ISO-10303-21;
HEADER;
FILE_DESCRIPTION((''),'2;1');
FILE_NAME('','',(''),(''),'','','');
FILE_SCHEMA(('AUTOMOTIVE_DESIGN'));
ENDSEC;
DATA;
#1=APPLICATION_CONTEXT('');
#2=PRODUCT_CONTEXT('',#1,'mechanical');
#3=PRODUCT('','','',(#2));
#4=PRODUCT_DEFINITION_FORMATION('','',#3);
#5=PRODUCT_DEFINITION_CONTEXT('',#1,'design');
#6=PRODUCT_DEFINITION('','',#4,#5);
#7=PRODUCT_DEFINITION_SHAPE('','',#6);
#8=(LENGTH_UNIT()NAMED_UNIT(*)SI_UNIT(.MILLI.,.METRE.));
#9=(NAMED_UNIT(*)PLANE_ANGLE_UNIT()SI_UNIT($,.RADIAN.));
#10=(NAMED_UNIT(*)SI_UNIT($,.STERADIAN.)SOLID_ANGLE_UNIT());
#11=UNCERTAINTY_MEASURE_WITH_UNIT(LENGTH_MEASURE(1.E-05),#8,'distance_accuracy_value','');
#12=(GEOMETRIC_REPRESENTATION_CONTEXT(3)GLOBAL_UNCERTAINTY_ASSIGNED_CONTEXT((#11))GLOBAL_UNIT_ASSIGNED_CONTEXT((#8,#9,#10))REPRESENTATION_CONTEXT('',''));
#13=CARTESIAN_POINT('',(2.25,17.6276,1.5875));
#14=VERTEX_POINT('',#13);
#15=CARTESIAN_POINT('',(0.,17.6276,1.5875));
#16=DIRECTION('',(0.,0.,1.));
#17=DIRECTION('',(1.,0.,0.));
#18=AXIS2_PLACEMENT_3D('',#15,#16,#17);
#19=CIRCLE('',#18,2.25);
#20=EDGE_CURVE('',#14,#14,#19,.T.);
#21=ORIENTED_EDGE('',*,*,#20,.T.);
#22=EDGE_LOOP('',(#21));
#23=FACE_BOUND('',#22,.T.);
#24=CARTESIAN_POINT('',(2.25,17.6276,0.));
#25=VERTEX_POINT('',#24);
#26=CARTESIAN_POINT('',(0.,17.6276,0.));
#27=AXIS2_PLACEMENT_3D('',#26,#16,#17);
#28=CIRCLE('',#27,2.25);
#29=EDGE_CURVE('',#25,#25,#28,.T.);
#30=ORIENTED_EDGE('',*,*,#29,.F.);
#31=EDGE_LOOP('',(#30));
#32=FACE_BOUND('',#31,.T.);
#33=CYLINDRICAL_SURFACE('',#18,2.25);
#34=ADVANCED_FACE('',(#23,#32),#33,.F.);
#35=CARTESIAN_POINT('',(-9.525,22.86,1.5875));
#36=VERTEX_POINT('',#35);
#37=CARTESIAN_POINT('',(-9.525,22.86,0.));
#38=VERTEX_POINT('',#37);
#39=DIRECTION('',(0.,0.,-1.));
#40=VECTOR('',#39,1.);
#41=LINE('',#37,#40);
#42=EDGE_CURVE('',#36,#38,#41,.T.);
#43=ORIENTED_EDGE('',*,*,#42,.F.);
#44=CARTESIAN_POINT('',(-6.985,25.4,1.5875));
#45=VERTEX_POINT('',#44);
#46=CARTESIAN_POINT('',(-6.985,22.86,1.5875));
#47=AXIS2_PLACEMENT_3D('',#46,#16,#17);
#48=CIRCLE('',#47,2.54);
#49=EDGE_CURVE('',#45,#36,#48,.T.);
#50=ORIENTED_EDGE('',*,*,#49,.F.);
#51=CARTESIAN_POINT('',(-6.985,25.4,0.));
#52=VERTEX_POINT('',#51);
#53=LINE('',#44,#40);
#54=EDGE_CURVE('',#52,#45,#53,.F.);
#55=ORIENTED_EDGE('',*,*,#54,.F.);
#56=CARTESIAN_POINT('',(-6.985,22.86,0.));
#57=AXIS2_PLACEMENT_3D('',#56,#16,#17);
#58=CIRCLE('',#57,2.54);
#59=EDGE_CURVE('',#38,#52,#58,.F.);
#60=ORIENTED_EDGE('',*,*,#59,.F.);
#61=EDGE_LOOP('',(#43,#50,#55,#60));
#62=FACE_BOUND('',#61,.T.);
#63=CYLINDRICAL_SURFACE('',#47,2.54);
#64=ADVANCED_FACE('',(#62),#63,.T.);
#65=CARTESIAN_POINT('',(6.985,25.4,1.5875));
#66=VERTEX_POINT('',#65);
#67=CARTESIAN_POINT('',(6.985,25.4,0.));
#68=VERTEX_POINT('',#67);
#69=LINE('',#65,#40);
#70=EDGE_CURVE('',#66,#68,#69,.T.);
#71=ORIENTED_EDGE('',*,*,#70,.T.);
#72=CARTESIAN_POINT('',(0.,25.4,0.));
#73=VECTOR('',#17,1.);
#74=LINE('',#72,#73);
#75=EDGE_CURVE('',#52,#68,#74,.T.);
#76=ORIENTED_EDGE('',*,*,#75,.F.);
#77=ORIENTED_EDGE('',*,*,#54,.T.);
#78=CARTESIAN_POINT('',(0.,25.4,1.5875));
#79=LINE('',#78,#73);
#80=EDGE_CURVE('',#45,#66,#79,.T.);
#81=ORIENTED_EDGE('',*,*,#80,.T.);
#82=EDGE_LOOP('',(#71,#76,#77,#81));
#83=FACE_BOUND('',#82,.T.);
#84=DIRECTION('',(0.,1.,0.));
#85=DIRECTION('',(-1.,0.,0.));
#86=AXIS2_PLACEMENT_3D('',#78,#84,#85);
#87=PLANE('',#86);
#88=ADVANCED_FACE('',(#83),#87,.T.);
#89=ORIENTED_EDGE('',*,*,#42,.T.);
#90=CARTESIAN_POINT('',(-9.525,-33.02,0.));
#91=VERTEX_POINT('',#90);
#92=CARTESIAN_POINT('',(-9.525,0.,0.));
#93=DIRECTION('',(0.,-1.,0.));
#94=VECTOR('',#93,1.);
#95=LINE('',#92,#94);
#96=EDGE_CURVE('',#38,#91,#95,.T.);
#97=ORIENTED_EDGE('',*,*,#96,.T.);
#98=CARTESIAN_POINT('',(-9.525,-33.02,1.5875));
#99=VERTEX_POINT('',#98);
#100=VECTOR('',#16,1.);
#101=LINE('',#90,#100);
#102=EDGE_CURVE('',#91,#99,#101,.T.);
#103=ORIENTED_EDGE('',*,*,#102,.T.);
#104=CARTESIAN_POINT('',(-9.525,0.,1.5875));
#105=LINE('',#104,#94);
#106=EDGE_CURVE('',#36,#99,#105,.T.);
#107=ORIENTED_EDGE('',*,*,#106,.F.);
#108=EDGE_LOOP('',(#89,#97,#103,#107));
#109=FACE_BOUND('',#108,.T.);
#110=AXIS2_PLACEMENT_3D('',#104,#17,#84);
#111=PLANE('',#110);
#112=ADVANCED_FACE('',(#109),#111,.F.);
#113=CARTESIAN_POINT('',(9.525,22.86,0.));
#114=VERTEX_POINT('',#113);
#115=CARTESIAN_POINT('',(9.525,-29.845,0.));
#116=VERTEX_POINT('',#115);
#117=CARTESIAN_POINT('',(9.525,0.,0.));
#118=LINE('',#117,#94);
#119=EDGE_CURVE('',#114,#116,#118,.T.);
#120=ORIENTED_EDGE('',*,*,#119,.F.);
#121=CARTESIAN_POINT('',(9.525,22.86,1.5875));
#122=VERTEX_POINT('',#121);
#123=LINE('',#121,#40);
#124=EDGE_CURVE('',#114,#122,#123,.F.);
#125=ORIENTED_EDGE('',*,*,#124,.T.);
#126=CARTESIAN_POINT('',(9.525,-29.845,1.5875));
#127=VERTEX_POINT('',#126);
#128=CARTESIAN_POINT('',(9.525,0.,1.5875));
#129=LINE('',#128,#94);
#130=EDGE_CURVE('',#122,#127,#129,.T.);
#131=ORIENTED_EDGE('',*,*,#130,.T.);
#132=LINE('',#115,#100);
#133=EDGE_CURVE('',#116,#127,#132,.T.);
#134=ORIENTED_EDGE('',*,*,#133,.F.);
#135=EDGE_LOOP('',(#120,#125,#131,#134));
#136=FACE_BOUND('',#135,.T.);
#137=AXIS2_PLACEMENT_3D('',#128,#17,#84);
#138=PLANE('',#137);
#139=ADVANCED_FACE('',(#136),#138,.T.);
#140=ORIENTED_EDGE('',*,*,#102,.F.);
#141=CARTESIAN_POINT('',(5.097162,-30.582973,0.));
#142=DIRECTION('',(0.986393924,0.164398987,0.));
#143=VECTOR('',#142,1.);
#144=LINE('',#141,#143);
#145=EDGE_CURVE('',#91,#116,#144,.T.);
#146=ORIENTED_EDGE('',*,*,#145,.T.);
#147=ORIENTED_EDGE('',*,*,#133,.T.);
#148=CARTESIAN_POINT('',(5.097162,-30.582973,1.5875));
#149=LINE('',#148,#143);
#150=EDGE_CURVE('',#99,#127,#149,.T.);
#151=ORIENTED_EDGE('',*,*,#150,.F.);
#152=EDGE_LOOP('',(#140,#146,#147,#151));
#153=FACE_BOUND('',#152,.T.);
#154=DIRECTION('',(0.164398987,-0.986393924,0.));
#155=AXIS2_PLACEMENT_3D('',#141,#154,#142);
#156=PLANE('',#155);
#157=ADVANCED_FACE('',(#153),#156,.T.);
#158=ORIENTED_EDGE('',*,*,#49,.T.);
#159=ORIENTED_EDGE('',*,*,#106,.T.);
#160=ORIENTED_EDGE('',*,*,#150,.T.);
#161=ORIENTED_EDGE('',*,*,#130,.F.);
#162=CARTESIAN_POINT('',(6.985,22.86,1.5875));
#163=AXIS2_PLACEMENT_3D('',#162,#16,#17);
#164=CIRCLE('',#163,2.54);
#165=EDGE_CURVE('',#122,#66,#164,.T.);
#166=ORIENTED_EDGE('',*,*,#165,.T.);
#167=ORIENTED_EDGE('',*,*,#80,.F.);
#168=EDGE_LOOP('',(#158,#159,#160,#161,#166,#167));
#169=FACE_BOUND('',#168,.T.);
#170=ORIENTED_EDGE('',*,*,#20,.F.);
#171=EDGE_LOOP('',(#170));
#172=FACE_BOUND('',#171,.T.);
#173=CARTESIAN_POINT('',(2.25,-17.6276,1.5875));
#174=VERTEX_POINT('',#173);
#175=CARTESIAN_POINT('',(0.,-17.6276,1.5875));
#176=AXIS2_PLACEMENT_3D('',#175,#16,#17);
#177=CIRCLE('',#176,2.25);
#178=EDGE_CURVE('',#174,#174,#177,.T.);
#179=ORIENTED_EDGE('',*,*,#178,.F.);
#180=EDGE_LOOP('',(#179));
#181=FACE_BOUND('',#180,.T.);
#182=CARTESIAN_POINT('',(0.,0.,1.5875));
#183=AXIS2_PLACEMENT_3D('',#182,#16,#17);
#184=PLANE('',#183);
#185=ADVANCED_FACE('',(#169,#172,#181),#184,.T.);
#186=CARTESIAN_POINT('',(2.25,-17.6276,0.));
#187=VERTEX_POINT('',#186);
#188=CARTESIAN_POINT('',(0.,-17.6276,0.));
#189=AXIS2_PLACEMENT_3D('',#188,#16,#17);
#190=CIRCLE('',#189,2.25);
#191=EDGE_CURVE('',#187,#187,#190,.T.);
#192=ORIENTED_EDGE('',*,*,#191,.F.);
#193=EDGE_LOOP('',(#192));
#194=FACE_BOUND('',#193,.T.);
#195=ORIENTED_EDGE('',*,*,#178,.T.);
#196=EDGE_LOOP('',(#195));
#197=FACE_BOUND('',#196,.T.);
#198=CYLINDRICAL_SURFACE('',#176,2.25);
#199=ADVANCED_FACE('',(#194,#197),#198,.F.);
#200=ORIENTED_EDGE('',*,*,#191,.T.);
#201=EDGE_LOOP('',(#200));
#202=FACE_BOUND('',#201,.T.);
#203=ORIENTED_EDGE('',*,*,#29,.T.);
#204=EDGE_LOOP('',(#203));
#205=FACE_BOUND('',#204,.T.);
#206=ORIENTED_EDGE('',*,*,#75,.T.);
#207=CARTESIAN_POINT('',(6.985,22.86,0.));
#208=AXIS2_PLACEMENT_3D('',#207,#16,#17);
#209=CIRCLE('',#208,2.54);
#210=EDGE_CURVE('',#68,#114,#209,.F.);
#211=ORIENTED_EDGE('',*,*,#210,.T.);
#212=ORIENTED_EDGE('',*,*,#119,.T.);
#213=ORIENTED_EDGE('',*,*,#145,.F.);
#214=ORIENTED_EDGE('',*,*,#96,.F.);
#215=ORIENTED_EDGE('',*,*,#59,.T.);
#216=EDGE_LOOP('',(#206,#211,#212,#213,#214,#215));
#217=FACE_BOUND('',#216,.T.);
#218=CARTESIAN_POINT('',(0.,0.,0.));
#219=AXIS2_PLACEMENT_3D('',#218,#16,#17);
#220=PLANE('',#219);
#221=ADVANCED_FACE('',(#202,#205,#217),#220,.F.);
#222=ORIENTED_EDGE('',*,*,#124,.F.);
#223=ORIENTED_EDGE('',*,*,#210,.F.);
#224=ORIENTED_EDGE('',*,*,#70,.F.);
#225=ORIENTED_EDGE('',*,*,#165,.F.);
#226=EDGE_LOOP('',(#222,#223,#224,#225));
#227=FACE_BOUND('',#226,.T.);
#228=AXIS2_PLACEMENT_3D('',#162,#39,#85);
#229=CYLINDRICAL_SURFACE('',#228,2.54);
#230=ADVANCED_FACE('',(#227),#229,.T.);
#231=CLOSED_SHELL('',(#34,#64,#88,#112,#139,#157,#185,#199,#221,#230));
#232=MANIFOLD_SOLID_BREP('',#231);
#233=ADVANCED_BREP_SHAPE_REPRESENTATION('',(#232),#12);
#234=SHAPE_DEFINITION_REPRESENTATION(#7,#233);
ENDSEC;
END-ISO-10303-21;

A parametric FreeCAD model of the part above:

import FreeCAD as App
import Part
import Sketcher

V = App.Vector
Q = App.Units.Quantity


def edges_at(feature, points):
    """Names of the edges that pass closest to the given points."""
    edges = feature.Shape.Edges
    near = lambda p: min(range(len(edges)), key=lambda i: edges[i].distToShape(Part.Vertex(*p))[0])
    return sorted({f"Edge{near(p) + 1}" for p in points})

doc = App.newDocument("Part")
params = doc.addObject("Spreadsheet::Sheet", "Params")
for row, (alias, value) in enumerate([
    ("sketch1_height", "2 in"),
    ("sketch1_width", "0.75 in"),
    ("pad1_length", "0.0625 in"),
    ("hole_diameter", "4.5 mm"),
    ("sketch3_height", "0.3 in"),
    ("sketch3_width", "0.75 in"),
    ("pad2_length", "0.0625 in"),
    ("fillet_radius", "0.1 in"),
    ("sketch4_width", "0.75 in"),
    ("sketch4_height", "0.125 in"),
], start=1):
    params.set(f"A{row}", alias)
    params.set(f"B{row}", "=" + value)
    params.setAlias(f"B{row}", alias)

body = doc.addObject("PartDesign::Body", "Body")

# Sketch on XY plane
sketch1 = body.newObject("Sketcher::SketchObject", "Sketch")
sketch1.AttachmentSupport = (doc.getObject("XY_Plane"), [""])
sketch1.MapMode = "FlatFace"
sketch1.addGeometry(Part.LineSegment(V(-9.525, 25.4, 0), V(-9.525, -25.4, 0)), False)
sketch1.addGeometry(Part.LineSegment(V(-9.525, -25.4, 0), V(9.525, -25.4, 0)), False)
sketch1.addGeometry(Part.LineSegment(V(9.525, -25.4, 0), V(9.525, 25.4, 0)), False)
sketch1.addGeometry(Part.LineSegment(V(9.525, 25.4, 0), V(-9.525, 25.4, 0)), False)
sketch1.addConstraint(Sketcher.Constraint("Coincident", 0, 2, 1, 1))
sketch1.addConstraint(Sketcher.Constraint("Coincident", 1, 2, 2, 1))
sketch1.addConstraint(Sketcher.Constraint("Coincident", 2, 2, 3, 1))
sketch1.addConstraint(Sketcher.Constraint("Coincident", 3, 2, 0, 1))
sketch1.addConstraint(Sketcher.Constraint("Vertical", 0))
sketch1.addConstraint(Sketcher.Constraint("Horizontal", 1))
sketch1.addConstraint(Sketcher.Constraint("Vertical", 2))
sketch1.addConstraint(Sketcher.Constraint("Horizontal", 3))
sketch1.addConstraint(Sketcher.Constraint("Symmetric", 0, 2, 2, 2, -1, 1))
sketch1.addConstraint(Sketcher.Constraint("DistanceY", 0, 2, 0, 1, Q("2 in")))
sketch1.addConstraint(Sketcher.Constraint("DistanceX", 1, 1, 1, 2, Q("0.75 in")))
sketch1.setExpression("Constraints[9]", "Params.sketch1_height")
sketch1.setExpression("Constraints[10]", "Params.sketch1_width")
pad1 = body.newObject("PartDesign::Pad", "Pad")
pad1.Profile = sketch1
pad1.setExpression("Length", "Params.pad1_length")

# Sketch on XY plane
sketch2 = body.newObject("Sketcher::SketchObject", "Sketch001")
sketch2.AttachmentSupport = (doc.getObject("XY_Plane"), [""])
sketch2.MapMode = "FlatFace"
sketch2.AttachmentOffset = App.Placement(V(0, 0, 0.0625 * 25.4), App.Rotation())
sketch2.addGeometry(Part.Circle(V(0, 17.6276, 0), V(0, 0, 1), 2.25), False)
sketch2.addGeometry(Part.Circle(V(0, -17.6276, 0), V(0, 0, 1), 2.25), False)
sketch2.addConstraint(Sketcher.Constraint("Equal", 0, 1))
sketch2.addConstraint(Sketcher.Constraint("Symmetric", 0, 3, 1, 3, -1, 1))
sketch2.addConstraint(Sketcher.Constraint("PointOnObject", 0, 3, -2))
sketch2.addConstraint(Sketcher.Constraint("Diameter", 0, Q("4.5 mm")))
sketch2.addConstraint(Sketcher.Constraint("DistanceY", -1, 1, 0, 3, Q("0.694 in")))
doc.recompute()
hole = body.newObject("PartDesign::Hole", "Hole")
hole.Profile = sketch2
hole.ThreadType = "None"
hole.setExpression("Diameter", "Params.hole_diameter")
hole.DepthType = "ThroughAll"

# Sketch on XY plane
sketch3 = body.newObject("Sketcher::SketchObject", "Sketch002")
sketch3.AttachmentSupport = (doc.getObject("XY_Plane"), [""])
sketch3.MapMode = "FlatFace"
sketch3.AttachmentOffset = App.Placement(V(0, 0, 0.0625 * 25.4), App.Rotation())
sketch3.addGeometry(Part.LineSegment(V(-9.525, -25.4, 0), V(-9.525, -33.02, 0)), False)
sketch3.addGeometry(Part.LineSegment(V(-9.525, -33.02, 0), V(9.525, -33.02, 0)), False)
sketch3.addGeometry(Part.LineSegment(V(9.525, -33.02, 0), V(9.525, -25.4, 0)), False)
sketch3.addGeometry(Part.LineSegment(V(9.525, -25.4, 0), V(-9.525, -25.4, 0)), False)
sketch3.addConstraint(Sketcher.Constraint("Coincident", 0, 2, 1, 1))
sketch3.addConstraint(Sketcher.Constraint("Coincident", 1, 2, 2, 1))
sketch3.addConstraint(Sketcher.Constraint("Coincident", 2, 2, 3, 1))
sketch3.addConstraint(Sketcher.Constraint("Coincident", 3, 2, 0, 1))
sketch3.addConstraint(Sketcher.Constraint("Vertical", 0))
sketch3.addConstraint(Sketcher.Constraint("Horizontal", 1))
sketch3.addConstraint(Sketcher.Constraint("Vertical", 2))
sketch3.addConstraint(Sketcher.Constraint("Horizontal", 3))
sketch3.addConstraint(Sketcher.Constraint("DistanceY", 0, 2, 0, 1, Q("0.3 in")))
sketch3.addConstraint(Sketcher.Constraint("DistanceY", 2, 2, -1, 1, Q("1 in")))
sketch3.addConstraint(Sketcher.Constraint("DistanceX", 1, 1, 1, 2, Q("0.75 in")))
sketch3.addConstraint(Sketcher.Constraint("DistanceX", 0, 2, -1, 1, Q("0.375 in")))
sketch3.setExpression("Constraints[8]", "Params.sketch3_height")
sketch3.setExpression("Constraints[10]", "Params.sketch3_width")
pad2 = body.newObject("PartDesign::Pad", "Pad001")
pad2.Profile = sketch3
pad2.setExpression("Length", "Params.pad2_length")
pad2.Reversed = True
doc.recompute()

fillet = body.newObject("PartDesign::Fillet", "Fillet")
fillet.Base = (pad2, edges_at(pad2, [(-9.525, 25.4, 0.794), (9.525, 25.4, 0.794)]))
fillet.setExpression("Radius", "Params.fillet_radius")

# Sketch on XY plane
sketch4 = body.newObject("Sketcher::SketchObject", "Sketch003")
sketch4.AttachmentSupport = (doc.getObject("XY_Plane"), [""])
sketch4.MapMode = "FlatFace"
sketch4.AttachmentOffset = App.Placement(V(0, 0, 0.0625 * 25.4), App.Rotation())
sketch4.addGeometry(Part.LineSegment(V(9.525, -29.845, 0), V(-9.525, -33.02, 0)), False)
sketch4.addGeometry(Part.LineSegment(V(-9.525, -33.02, 0), V(9.525, -33.02, 0)), False)
sketch4.addGeometry(Part.LineSegment(V(9.525, -33.02, 0), V(9.525, -29.845, 0)), False)
sketch4.addConstraint(Sketcher.Constraint("Coincident", 0, 2, 1, 1))
sketch4.addConstraint(Sketcher.Constraint("Coincident", 1, 2, 2, 1))
sketch4.addConstraint(Sketcher.Constraint("Coincident", 2, 2, 0, 1))
sketch4.addConstraint(Sketcher.Constraint("Horizontal", 1))
sketch4.addConstraint(Sketcher.Constraint("Vertical", 2))
sketch4.addConstraint(Sketcher.Constraint("DistanceX", 1, 1, 1, 2, Q("0.75 in")))
sketch4.addConstraint(Sketcher.Constraint("DistanceY", 0, 2, -1, 1, Q("1.3 in")))
sketch4.addConstraint(Sketcher.Constraint("DistanceY", 2, 1, 2, 2, Q("0.125 in")))
sketch4.addConstraint(Sketcher.Constraint("DistanceX", 0, 2, -1, 1, Q("0.375 in")))
sketch4.setExpression("Constraints[5]", "Params.sketch4_width")
sketch4.setExpression("Constraints[7]", "Params.sketch4_height")
pocket1 = body.newObject("PartDesign::Pocket", "Pocket")
pocket1.Profile = sketch4
pocket1.Type = "ThroughAll"
pocket1.Midplane = True

doc.recompute()
